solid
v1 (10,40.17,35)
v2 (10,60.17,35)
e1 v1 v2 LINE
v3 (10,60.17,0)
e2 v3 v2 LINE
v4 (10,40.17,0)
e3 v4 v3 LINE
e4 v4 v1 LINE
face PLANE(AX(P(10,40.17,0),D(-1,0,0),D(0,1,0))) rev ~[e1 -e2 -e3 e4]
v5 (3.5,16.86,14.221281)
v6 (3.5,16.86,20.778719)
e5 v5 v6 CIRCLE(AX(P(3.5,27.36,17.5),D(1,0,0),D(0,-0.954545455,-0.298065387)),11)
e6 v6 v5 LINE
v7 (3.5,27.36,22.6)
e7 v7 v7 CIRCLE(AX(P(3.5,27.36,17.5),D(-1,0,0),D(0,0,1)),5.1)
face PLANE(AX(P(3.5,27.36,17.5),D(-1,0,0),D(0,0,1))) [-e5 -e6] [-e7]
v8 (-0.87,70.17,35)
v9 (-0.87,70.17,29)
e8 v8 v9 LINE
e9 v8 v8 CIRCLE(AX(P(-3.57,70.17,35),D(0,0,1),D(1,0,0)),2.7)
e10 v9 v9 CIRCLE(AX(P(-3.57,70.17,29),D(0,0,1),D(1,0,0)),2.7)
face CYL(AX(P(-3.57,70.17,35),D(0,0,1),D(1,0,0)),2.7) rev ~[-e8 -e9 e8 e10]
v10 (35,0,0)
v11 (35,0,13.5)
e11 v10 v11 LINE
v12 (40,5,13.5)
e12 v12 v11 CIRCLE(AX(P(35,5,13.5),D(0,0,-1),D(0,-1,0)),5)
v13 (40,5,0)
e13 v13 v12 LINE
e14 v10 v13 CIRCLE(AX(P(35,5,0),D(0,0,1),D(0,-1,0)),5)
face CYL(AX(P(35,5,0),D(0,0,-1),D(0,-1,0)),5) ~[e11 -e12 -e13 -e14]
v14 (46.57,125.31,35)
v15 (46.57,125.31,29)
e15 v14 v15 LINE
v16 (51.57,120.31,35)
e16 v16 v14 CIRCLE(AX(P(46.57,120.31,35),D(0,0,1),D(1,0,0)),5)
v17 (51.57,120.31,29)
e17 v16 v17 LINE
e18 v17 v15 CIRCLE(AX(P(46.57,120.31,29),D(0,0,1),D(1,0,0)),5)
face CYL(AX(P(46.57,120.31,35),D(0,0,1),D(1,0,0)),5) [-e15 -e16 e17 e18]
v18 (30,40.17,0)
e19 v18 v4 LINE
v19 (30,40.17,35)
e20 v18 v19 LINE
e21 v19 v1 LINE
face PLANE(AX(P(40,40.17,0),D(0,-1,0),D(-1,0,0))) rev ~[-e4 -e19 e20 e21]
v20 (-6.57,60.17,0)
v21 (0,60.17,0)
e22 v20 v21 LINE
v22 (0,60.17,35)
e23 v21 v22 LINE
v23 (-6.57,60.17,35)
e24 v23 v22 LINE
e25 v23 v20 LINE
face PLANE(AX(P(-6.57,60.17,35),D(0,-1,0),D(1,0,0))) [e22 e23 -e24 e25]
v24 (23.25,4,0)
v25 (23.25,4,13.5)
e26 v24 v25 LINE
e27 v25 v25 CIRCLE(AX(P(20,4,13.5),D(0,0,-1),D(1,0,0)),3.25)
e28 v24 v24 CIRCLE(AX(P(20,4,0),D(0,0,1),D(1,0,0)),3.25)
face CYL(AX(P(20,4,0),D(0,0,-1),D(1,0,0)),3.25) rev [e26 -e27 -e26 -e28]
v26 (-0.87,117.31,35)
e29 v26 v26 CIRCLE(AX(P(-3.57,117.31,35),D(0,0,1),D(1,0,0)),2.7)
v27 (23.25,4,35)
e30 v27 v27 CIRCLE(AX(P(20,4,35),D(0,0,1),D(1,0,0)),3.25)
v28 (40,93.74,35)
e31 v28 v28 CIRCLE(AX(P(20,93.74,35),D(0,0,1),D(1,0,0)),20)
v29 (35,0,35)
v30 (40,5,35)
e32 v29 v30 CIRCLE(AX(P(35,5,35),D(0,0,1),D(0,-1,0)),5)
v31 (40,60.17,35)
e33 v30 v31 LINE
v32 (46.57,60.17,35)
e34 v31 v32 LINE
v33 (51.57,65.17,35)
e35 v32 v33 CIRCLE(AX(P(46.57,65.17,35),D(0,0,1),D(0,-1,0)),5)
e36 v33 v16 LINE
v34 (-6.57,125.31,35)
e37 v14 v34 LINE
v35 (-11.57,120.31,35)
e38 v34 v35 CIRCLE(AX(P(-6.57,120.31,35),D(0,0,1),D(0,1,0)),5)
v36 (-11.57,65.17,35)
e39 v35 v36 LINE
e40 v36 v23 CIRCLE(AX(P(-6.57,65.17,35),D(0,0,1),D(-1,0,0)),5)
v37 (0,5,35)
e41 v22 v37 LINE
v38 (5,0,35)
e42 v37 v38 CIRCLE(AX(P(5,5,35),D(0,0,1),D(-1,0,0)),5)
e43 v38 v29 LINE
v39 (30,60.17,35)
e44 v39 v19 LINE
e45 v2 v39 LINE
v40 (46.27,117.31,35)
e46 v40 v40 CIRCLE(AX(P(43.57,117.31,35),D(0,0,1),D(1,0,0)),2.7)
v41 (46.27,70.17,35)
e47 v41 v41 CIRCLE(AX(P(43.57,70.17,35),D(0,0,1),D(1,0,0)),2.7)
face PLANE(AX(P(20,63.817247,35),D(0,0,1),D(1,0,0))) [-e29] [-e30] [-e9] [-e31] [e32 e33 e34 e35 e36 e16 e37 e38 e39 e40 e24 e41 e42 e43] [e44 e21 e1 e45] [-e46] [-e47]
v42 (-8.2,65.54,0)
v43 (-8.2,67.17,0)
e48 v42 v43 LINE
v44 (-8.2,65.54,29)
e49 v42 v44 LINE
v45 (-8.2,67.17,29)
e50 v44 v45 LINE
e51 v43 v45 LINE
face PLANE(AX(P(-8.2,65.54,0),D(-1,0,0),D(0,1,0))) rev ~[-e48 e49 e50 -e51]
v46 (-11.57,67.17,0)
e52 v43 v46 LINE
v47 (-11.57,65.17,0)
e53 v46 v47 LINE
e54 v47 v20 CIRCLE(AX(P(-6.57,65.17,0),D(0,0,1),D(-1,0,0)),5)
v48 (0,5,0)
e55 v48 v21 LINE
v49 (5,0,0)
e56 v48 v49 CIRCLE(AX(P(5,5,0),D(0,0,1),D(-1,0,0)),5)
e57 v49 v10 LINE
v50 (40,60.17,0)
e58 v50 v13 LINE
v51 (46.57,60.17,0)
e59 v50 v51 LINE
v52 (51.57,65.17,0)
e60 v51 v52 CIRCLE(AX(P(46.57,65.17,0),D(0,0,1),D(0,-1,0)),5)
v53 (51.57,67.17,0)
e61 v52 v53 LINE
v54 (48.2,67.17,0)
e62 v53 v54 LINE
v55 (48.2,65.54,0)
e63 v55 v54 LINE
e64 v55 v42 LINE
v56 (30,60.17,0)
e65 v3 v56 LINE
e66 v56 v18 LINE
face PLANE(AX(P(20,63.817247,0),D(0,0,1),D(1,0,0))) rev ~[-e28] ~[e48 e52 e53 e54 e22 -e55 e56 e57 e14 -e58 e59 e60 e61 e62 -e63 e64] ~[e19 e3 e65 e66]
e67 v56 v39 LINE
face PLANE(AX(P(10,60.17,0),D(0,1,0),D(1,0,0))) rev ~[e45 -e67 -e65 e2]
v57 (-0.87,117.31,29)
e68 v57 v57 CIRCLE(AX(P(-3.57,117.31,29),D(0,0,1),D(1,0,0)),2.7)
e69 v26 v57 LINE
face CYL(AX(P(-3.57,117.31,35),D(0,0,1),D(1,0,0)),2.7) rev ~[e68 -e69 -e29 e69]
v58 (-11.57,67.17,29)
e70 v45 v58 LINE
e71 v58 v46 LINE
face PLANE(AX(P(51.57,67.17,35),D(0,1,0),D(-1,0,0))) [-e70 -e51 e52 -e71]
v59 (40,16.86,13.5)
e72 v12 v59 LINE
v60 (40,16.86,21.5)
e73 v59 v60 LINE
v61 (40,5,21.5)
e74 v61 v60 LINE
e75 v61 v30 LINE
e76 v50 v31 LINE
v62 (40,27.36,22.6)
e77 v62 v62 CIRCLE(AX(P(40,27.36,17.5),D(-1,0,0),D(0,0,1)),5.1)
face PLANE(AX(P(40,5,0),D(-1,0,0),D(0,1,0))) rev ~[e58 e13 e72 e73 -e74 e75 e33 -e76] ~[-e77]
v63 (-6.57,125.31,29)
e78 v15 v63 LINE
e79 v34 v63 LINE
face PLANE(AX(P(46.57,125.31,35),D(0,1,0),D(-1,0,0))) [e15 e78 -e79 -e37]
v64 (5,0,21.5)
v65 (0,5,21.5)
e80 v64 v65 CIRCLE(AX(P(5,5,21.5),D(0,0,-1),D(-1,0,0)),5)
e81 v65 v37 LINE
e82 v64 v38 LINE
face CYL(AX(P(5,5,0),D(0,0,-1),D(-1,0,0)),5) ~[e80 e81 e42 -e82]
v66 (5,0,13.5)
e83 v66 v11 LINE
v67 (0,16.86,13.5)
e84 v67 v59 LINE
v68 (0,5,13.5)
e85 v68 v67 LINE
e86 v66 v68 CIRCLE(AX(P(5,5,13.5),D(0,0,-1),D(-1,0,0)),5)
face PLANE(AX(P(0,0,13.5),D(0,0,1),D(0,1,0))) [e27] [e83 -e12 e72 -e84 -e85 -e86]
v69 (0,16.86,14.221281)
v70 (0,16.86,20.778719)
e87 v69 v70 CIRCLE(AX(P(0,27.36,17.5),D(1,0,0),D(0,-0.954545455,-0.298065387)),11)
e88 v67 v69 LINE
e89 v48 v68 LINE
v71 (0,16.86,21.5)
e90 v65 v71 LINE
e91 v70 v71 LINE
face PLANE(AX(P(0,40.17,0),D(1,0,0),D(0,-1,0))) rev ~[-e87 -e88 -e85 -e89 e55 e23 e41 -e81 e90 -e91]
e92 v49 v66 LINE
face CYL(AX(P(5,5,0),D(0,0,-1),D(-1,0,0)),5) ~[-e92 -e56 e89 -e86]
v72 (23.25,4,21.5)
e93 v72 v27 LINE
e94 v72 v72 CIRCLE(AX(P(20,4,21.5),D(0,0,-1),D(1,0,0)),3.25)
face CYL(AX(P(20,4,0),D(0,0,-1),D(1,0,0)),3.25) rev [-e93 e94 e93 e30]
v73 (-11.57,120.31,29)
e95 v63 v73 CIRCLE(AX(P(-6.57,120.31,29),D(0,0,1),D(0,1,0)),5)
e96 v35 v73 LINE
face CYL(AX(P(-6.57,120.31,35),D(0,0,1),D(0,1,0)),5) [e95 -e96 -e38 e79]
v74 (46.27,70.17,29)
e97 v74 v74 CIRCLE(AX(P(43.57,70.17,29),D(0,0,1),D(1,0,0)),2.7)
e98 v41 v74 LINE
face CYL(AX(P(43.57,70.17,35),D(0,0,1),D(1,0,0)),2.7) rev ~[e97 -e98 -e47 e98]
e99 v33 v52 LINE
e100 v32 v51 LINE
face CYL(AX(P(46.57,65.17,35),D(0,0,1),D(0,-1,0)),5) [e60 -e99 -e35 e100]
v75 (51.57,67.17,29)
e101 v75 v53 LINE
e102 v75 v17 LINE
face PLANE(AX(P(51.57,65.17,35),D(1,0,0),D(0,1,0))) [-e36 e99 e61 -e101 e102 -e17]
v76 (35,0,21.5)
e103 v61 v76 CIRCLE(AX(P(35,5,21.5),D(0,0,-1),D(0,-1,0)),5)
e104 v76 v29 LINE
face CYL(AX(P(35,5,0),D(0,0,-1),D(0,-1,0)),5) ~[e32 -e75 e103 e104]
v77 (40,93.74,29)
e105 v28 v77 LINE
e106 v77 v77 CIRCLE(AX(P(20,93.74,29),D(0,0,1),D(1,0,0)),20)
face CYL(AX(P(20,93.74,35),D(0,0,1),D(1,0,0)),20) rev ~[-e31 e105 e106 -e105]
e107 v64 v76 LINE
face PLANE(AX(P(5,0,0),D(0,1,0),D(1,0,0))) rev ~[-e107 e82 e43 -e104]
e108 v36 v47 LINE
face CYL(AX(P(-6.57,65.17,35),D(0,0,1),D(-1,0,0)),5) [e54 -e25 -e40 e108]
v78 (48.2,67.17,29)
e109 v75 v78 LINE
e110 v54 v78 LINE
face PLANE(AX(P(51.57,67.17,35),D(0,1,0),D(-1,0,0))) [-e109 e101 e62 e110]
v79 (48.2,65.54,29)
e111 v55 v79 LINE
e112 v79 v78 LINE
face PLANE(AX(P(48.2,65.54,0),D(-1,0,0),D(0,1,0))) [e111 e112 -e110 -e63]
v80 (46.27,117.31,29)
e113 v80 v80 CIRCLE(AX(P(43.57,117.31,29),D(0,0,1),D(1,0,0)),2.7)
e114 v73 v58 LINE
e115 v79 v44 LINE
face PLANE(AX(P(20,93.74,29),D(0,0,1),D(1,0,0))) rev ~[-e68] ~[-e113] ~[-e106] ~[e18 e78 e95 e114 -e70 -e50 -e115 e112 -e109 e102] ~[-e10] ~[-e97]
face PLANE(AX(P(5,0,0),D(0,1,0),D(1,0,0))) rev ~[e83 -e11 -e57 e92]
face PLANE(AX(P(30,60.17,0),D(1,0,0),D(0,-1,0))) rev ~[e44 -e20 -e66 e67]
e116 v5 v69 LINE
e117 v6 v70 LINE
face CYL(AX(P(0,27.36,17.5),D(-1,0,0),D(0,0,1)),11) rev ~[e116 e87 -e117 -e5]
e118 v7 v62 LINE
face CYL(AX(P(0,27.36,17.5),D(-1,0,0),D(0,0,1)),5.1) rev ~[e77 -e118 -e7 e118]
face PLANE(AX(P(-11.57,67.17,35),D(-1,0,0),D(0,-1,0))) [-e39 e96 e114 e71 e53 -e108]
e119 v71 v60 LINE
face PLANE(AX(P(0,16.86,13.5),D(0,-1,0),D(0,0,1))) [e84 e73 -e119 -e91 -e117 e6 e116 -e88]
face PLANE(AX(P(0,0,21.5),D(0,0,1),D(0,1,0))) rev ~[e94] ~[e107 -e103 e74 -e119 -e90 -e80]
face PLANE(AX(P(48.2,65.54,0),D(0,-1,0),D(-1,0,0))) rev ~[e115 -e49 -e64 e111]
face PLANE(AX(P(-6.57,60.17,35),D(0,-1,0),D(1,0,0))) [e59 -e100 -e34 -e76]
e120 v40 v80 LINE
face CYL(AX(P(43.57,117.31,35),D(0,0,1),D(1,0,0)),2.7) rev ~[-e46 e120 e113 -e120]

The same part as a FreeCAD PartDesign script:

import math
import FreeCAD as App
import Part
import Sketcher

doc = App.newDocument("Part")
params = doc.addObject("Spreadsheet::Sheet", "Params")
for row, (alias, value) in enumerate([
    ("sketch1_radius", "5 mm"),
    ("sketch1_diameter", "6.5 mm"),
    ("sketch1_width", "30 mm"),
    ("sketch1_width2", "20 mm"),
    ("sketch1_height", "55.17 mm"),
    ("pad1_length", "35 mm"),
    ("sketch2_diameter", "10.2 mm"),
    ("sketch2_height", "8 mm"),
    ("sketch2_width", "16.86 mm"),
    ("sketch3_diameter", "22 mm"),
    ("pocket2_length", "3.5 mm"),
    ("sketch4_diameter", "40 mm"),
    ("sketch4_radius", "5 mm"),
    ("sketch4_diameter2", "5.4 mm"),
    ("sketch4_width", "53.14 mm"),
    ("pad2_length", "6 mm"),
    ("sketch5_radius", "5 mm"),
    ("sketch5_height", "2 mm"),
    ("sketch5_width", "53.14 mm"),
    ("pad3_length", "29 mm"),
    ("pad3_length2", "6 mm"),
    ("sketch6_width", "56.4 mm"),
    ("pocket3_length", "29 mm"),
], start=1):
    params.set(f"A{row}", alias)
    params.set(f"B{row}", "=" + value)
    params.setAlias(f"B{row}", alias)

body = doc.addObject("PartDesign::Body", "Body")

# Sketch on XY plane
sketch1 = body.newObject("Sketcher::SketchObject", "Sketch")
sketch1.AttachmentSupport = (doc.getObject("XY_Plane"), [""])
sketch1.MapMode = "FlatFace"
sketch1.addGeometry([
    Part.LineSegment(App.Vector(0, 60.2, 0), App.Vector(0, 5, 0)),  # 0
    Part.ArcOfCircle(Part.Circle(App.Vector(5, 5, 0), App.Vector(0, 0, 1), 5), math.radians(180), math.radians(270)),  # 1
    Part.LineSegment(App.Vector(5, 0, 0), App.Vector(35, 0, 0)),  # 2
    Part.ArcOfCircle(Part.Circle(App.Vector(35, 5, 0), App.Vector(0, 0, 1), 5), math.radians(-90), math.radians(0)),  # 3
    Part.LineSegment(App.Vector(40, 5, 0), App.Vector(40, 60.2, 0)),  # 4
    Part.ArcOfCircle(Part.Circle(App.Vector(35, 60.2, 0), App.Vector(0, 0, 1), 5), math.radians(0), math.radians(90)),  # 5
    Part.LineSegment(App.Vector(35, 65.2, 0), App.Vector(5, 65.2, 0)),  # 6
    Part.ArcOfCircle(Part.Circle(App.Vector(5, 60.2, 0), App.Vector(0, 0, 1), 5), math.radians(90), math.radians(180)),  # 7
    Part.LineSegment(App.Vector(10, 40.2, 0), App.Vector(10, 60.2, 0)),  # 8
    Part.LineSegment(App.Vector(10, 60.2, 0), App.Vector(30, 60.2, 0)),  # 9
    Part.LineSegment(App.Vector(30, 60.2, 0), App.Vector(30, 40.2, 0)),  # 10
    Part.LineSegment(App.Vector(30, 40.2, 0), App.Vector(10, 40.2, 0)),  # 11
    Part.Circle(App.Vector(20, 4, 0), App.Vector(0, 0, 1), 3.2),  # 12
], False)
sketch1.addConstraint([
    Sketcher.Constraint("Tangent", 0, 2, 1, 1),
    Sketcher.Constraint("Tangent", 1, 2, 2, 1),
    Sketcher.Constraint("Tangent", 2, 2, 3, 1),
    Sketcher.Constraint("Tangent", 3, 2, 4, 1),
    Sketcher.Constraint("Tangent", 4, 2, 5, 1),
    Sketcher.Constraint("Tangent", 5, 2, 6, 1),
    Sketcher.Constraint("Tangent", 6, 2, 7, 1),
    Sketcher.Constraint("Tangent", 7, 2, 0, 1),
    Sketcher.Constraint("Coincident", 8, 2, 9, 1),
    Sketcher.Constraint("Coincident", 9, 2, 10, 1),
    Sketcher.Constraint("Coincident", 10, 2, 11, 1),
    Sketcher.Constraint("Coincident", 11, 2, 8, 1),
    Sketcher.Constraint("Vertical", 0),
    Sketcher.Constraint("Horizontal", 2),
    Sketcher.Constraint("Vertical", 4),
    Sketcher.Constraint("Horizontal", 6),
    Sketcher.Constraint("Vertical", 8),
    Sketcher.Constraint("Horizontal", 9),
    Sketcher.Constraint("Vertical", 10),
    Sketcher.Constraint("Horizontal", 11),
    Sketcher.Constraint("Equal", 1, 3),
    Sketcher.Constraint("Equal", 3, 5),
    Sketcher.Constraint("Equal", 5, 7),
    Sketcher.Constraint("PointOnObject", 0, 2, -2),
    Sketcher.Constraint("PointOnObject", 1, 2, -1),
    Sketcher.Constraint("Horizontal", 7, 2, 8, 2),
    Sketcher.Constraint("Equal", 11, 8),
    Sketcher.Constraint("Radius", 1, 5.0),
    Sketcher.Constraint("Diameter", 12, 6.5),
    Sketcher.Constraint("DistanceX", 2, 1, 2, 2, 30.0),
    Sketcher.Constraint("DistanceX", 9, 1, 9, 2, 20.0),
    Sketcher.Constraint("DistanceX", -1, 1, 12, 3, 20.0),
    Sketcher.Constraint("DistanceY", -1, 1, 12, 3, 4.0),
    Sketcher.Constraint("DistanceX", -1, 1, 8, 2, 10.0),
    Sketcher.Constraint("DistanceY", 0, 2, 0, 1, 55.17),
])
sketch1.setExpression("Constraints[27]", "Params.sketch1_radius")
sketch1.setExpression("Constraints[28]", "Params.sketch1_diameter")
sketch1.setExpression("Constraints[29]", "Params.sketch1_width")
sketch1.setExpression("Constraints[30]", "Params.sketch1_width2")
sketch1.setExpression("Constraints[34]", "Params.sketch1_height")
pad1 = body.newObject("PartDesign::Pad", "Pad")
pad1.Profile = sketch1
pad1.setExpression("Length", "Params.pad1_length")

# Sketch on YZ plane
sketch2 = body.newObject("Sketcher::SketchObject", "Sketch001")
sketch2.AttachmentSupport = (doc.getObject("YZ_Plane"), [""])
sketch2.MapMode = "FlatFace"
sketch2.addGeometry([
    Part.Circle(App.Vector(27, 18, 0), App.Vector(0, 0, 1), 5),  # 0
    Part.LineSegment(App.Vector(17, 14, 0), App.Vector(0, 14, 0)),  # 1
    Part.LineSegment(App.Vector(0, 14, 0), App.Vector(0, 22, 0)),  # 2
    Part.LineSegment(App.Vector(0, 22, 0), App.Vector(17, 22, 0)),  # 3
    Part.LineSegment(App.Vector(17, 22, 0), App.Vector(17, 14, 0)),  # 4
], False)
sketch2.addConstraint([
    Sketcher.Constraint("Coincident", 1, 2, 2, 1),
    Sketcher.Constraint("Coincident", 2, 2, 3, 1),
    Sketcher.Constraint("Coincident", 3, 2, 4, 1),
    Sketcher.Constraint("Coincident", 4, 2, 1, 1),
    Sketcher.Constraint("Horizontal", 1),
    Sketcher.Constraint("Vertical", 2),
    Sketcher.Constraint("Horizontal", 3),
    Sketcher.Constraint("Vertical", 4),
    Sketcher.Constraint("PointOnObject", 1, 2, -2),
    Sketcher.Constraint("Diameter", 0, 10.2),
    Sketcher.Constraint("DistanceY", 2, 1, 2, 2, 8.0),
    Sketcher.Constraint("DistanceY", 1, 2, 0, 3, 4.0),
    Sketcher.Constraint("DistanceX", 1, 2, 1, 1, 16.86),
    Sketcher.Constraint("DistanceY", -1, 1, 0, 3, 17.5),
    Sketcher.Constraint("DistanceX", 3, 2, 0, 3, 10.5),
])
sketch2.setExpression("Constraints[9]", "Params.sketch2_diameter")
sketch2.setExpression("Constraints[10]", "Params.sketch2_height")
sketch2.setExpression("Constraints[12]", "Params.sketch2_width")
pocket1 = body.newObject("PartDesign::Pocket", "Pocket")
pocket1.Profile = sketch2
pocket1.Type = "ThroughAll"
pocket1.Reversed = True

# Sketch on YZ plane
sketch3 = body.newObject("Sketcher::SketchObject", "Sketch002")
sketch3.AttachmentSupport = (doc.getObject("YZ_Plane"), [""])
sketch3.MapMode = "FlatFace"
sketch3.addGeometry(Part.Circle(App.Vector(27, 18, 0), App.Vector(0, 0, 1), 11), False)
sketch3.addConstraint([
    Sketcher.Constraint("Diameter", 0, 22.0),
    Sketcher.Constraint("DistanceY", -1, 1, 0, 3, 17.5),
    Sketcher.Constraint("DistanceX", -1, 1, 0, 3, 27.36),
])
sketch3.setExpression("Constraints[0]", "Params.sketch3_diameter")
pocket2 = body.newObject("PartDesign::Pocket", "Pocket001")
pocket2.Profile = sketch3
pocket2.setExpression("Length", "Params.pocket2_length")
pocket2.Reversed = True

# Sketch on XY plane
sketch4 = body.newObject("Sketcher::SketchObject", "Sketch003")
sketch4.AttachmentSupport = (doc.getObject("XY_Plane"), [""])
sketch4.MapMode = "FlatFace"
sketch4.AttachmentOffset = App.Placement(App.Vector(0, 0, 35), App.Rotation())
sketch4.addGeometry([
    Part.LineSegment(App.Vector(-11.6, 120.3, 0), App.Vector(-11.6, 67.2, 0)),  # 0
    Part.ArcOfCircle(Part.Circle(App.Vector(-6.6, 67.2, 0), App.Vector(0, 0, 1), 5), math.radians(180), math.radians(270)),  # 1
    Part.LineSegment(App.Vector(-6.6, 62.2, 0), App.Vector(46.6, 62.2, 0)),  # 2
    Part.ArcOfCircle(Part.Circle(App.Vector(46.6, 67.2, 0), App.Vector(0, 0, 1), 5), math.radians(-90), math.radians(0)),  # 3
    Part.LineSegment(App.Vector(51.6, 67.2, 0), App.Vector(51.6, 120.3, 0)),  # 4
    Part.ArcOfCircle(Part.Circle(App.Vector(46.6, 120.3, 0), App.Vector(0, 0, 1), 5), math.radians(0), math.radians(90)),  # 5
    Part.LineSegment(App.Vector(46.6, 125.3, 0), App.Vector(-6.6, 125.3, 0)),  # 6
    Part.ArcOfCircle(Part.Circle(App.Vector(-6.6, 120.3, 0), App.Vector(0, 0, 1), 5), math.radians(90), math.radians(180)),  # 7
    Part.Circle(App.Vector(-3.6, 70.2, 0), App.Vector(0, 0, 1), 2.7),  # 8
    Part.Circle(App.Vector(20, 93.7, 0), App.Vector(0, 0, 1), 20),  # 9
    Part.Circle(App.Vector(43.6, 70.2, 0), App.Vector(0, 0, 1), 2.7),  # 10
    Part.Circle(App.Vector(-3.6, 117.3, 0), App.Vector(0, 0, 1), 2.7),  # 11
    Part.Circle(App.Vector(43.6, 117.3, 0), App.Vector(0, 0, 1), 2.7),  # 12
], False)
sketch4.addConstraint([
    Sketcher.Constraint("Tangent", 0, 2, 1, 1),
    Sketcher.Constraint("Tangent", 1, 2, 2, 1),
    Sketcher.Constraint("Tangent", 2, 2, 3, 1),
    Sketcher.Constraint("Tangent", 3, 2, 4, 1),
    Sketcher.Constraint("Tangent", 4, 2, 5, 1),
    Sketcher.Constraint("Tangent", 5, 2, 6, 1),
    Sketcher.Constraint("Tangent", 6, 2, 7, 1),
    Sketcher.Constraint("Tangent", 7, 2, 0, 1),
    Sketcher.Constraint("Vertical", 0),
    Sketcher.Constraint("Horizontal", 2),
    Sketcher.Constraint("Vertical", 4),
    Sketcher.Constraint("Horizontal", 6),
    Sketcher.Constraint("Equal", 1, 3),
    Sketcher.Constraint("Equal", 3, 5),
    Sketcher.Constraint("Equal", 5, 7),
    Sketcher.Constraint("Equal", 8, 10),
    Sketcher.Constraint("Equal", 10, 11),
    Sketcher.Constraint("Equal", 11, 12),
    Sketcher.Constraint("Horizontal", 8, 3, 10, 3),
    Sketcher.Constraint("Horizontal", 11, 3, 12, 3),
    Sketcher.Constraint("Vertical", 8, 3, 11, 3),
    Sketcher.Constraint("Vertical", 10, 3, 12, 3),
    Sketcher.Constraint("Equal", 6, 0),
    Sketcher.Constraint("Diameter", 9, 40.0),
    Sketcher.Constraint("Radius", 1, 5.0),
    Sketcher.Constraint("Diameter", 8, 5.4),
    Sketcher.Constraint("DistanceX", -1, 1, 9, 3, 20.0),
    Sketcher.Constraint("DistanceX", 1, 3, 8, 3, 3.0),
    Sketcher.Constraint("DistanceY", 1, 3, 8, 3, 3.0),
    Sketcher.Constraint("DistanceX", 10, 3, 3, 3, 3.0),
    Sketcher.Constraint("DistanceY", 11, 3, 7, 3, 3.0),
    Sketcher.Constraint("DistanceX", 2, 1, 2, 2, 53.14),
    Sketcher.Constraint("DistanceX", 1, 3, -1, 1, 6.57),
    Sketcher.Constraint("DistanceY", -1, 1, 1, 3, 67.17),
    Sketcher.Constraint("DistanceY", -1, 1, 9, 3, 93.74),
])
sketch4.setExpression("Constraints[23]", "Params.sketch4_diameter")
sketch4.setExpression("Constraints[24]", "Params.sketch4_radius")
sketch4.setExpression("Constraints[25]", "Params.sketch4_diameter2")
sketch4.setExpression("Constraints[31]", "Params.sketch4_width")
pad2 = body.newObject("PartDesign::Pad", "Pad001")
pad2.Profile = sketch4
pad2.setExpression("Length", "Params.pad2_length")
pad2.Reversed = True

# Sketch on XY plane
sketch5 = body.newObject("Sketcher::SketchObject", "Sketch004")
sketch5.AttachmentSupport = (doc.getObject("XY_Plane"), [""])
sketch5.MapMode = "FlatFace"
sketch5.AttachmentOffset = App.Placement(App.Vector(0, 0, 29), App.Rotation())
sketch5.addGeometry([
    Part.LineSegment(App.Vector(46.6, 60.2, 0), App.Vector(-6.6, 60.2, 0)),  # 0
    Part.ArcOfCircle(Part.Circle(App.Vector(-6.6, 65.2, 0), App.Vector(0, 0, 1), 5), math.radians(180), math.radians(270)),  # 1
    Part.LineSegment(App.Vector(-11.6, 65.2, 0), App.Vector(-11.6, 67.2, 0)),  # 2
    Part.LineSegment(App.Vector(-11.6, 67.2, 0), App.Vector(51.6, 67.2, 0)),  # 3
    Part.LineSegment(App.Vector(51.6, 67.2, 0), App.Vector(51.6, 65.2, 0)),  # 4
    Part.ArcOfCircle(Part.Circle(App.Vector(46.6, 65.2, 0), App.Vector(0, 0, 1), 5), math.radians(-90), math.radians(0)),  # 5
], False)
sketch5.addConstraint([
    Sketcher.Constraint("Tangent", 0, 2, 1, 2),
    Sketcher.Constraint("Tangent", 1, 1, 2, 1),
    Sketcher.Constraint("Coincident", 2, 2, 3, 1),
    Sketcher.Constraint("Coincident", 3, 2, 4, 1),
    Sketcher.Constraint("Tangent", 4, 2, 5, 2),
    Sketcher.Constraint("Tangent", 5, 1, 0, 1),
    Sketcher.Constraint("Horizontal", 0),
    Sketcher.Constraint("Vertical", 2),
    Sketcher.Constraint("Horizontal", 3),
    Sketcher.Constraint("Vertical", 4),
    Sketcher.Constraint("Equal", 1, 5),
    Sketcher.Constraint("Radius", 1, 5.0),
    Sketcher.Constraint("DistanceY", 2, 1, 2, 2, 2.0),
    Sketcher.Constraint("DistanceX", 0, 2, 0, 1, 53.14),
    Sketcher.Constraint("DistanceX", 1, 3, -1, 1, 6.57),
    Sketcher.Constraint("DistanceY", -1, 1, 1, 3, 65.17),
])
sketch5.setExpression("Constraints[11]", "Params.sketch5_radius")
sketch5.setExpression("Constraints[12]", "Params.sketch5_height")
sketch5.setExpression("Constraints[13]", "Params.sketch5_width")
pad3 = body.newObject("PartDesign::Pad", "Pad002")
pad3.Profile = sketch5
pad3.Type = "TwoLengths"
pad3.setExpression("Length", "Params.pad3_length")
pad3.setExpression("Length2", "Params.pad3_length2")
pad3.Reversed = True

# Sketch on XY plane
sketch6 = body.newObject("Sketcher::SketchObject", "Sketch005")
sketch6.AttachmentSupport = (doc.getObject("XY_Plane"), [""])
sketch6.MapMode = "FlatFace"
sketch6.addGeometry([
    Part.LineSegment(App.Vector(48, 122, 0), App.Vector(48, 66, 0)),
    Part.LineSegment(App.Vector(48, 66, 0), App.Vector(-8, 66, 0)),
    Part.LineSegment(App.Vector(-8, 66, 0), App.Vector(-8, 122, 0)),
    Part.LineSegment(App.Vector(-8, 122, 0), App.Vector(48, 122, 0)),
], False)
sketch6.addConstraint([
    Sketcher.Constraint("Coincident", 0, 2, 1, 1),
    Sketcher.Constraint("Coincident", 1, 2, 2, 1),
    Sketcher.Constraint("Coincident", 2, 2, 3, 1),
    Sketcher.Constraint("Coincident", 3, 2, 0, 1),
    Sketcher.Constraint("Vertical", 0),
    Sketcher.Constraint("Horizontal", 1),
    Sketcher.Constraint("Vertical", 2),
    Sketcher.Constraint("Horizontal", 3),
    Sketcher.Constraint("Equal", 3, 0),
    Sketcher.Constraint("DistanceX", 1, 2, 1, 1, 56.4),
    Sketcher.Constraint("DistanceX", -1, 1, 0, 2, 48.2),
    Sketcher.Constraint("DistanceY", -1, 1, 0, 2, 65.54),
])
sketch6.setExpression("Constraints[9]", "Params.sketch6_width")
pocket3 = body.newObject("PartDesign::Pocket", "Pocket002")
pocket3.Profile = sketch6
pocket3.setExpression("Length", "Params.pocket3_length")
pocket3.Reversed = True

doc.recompute()
